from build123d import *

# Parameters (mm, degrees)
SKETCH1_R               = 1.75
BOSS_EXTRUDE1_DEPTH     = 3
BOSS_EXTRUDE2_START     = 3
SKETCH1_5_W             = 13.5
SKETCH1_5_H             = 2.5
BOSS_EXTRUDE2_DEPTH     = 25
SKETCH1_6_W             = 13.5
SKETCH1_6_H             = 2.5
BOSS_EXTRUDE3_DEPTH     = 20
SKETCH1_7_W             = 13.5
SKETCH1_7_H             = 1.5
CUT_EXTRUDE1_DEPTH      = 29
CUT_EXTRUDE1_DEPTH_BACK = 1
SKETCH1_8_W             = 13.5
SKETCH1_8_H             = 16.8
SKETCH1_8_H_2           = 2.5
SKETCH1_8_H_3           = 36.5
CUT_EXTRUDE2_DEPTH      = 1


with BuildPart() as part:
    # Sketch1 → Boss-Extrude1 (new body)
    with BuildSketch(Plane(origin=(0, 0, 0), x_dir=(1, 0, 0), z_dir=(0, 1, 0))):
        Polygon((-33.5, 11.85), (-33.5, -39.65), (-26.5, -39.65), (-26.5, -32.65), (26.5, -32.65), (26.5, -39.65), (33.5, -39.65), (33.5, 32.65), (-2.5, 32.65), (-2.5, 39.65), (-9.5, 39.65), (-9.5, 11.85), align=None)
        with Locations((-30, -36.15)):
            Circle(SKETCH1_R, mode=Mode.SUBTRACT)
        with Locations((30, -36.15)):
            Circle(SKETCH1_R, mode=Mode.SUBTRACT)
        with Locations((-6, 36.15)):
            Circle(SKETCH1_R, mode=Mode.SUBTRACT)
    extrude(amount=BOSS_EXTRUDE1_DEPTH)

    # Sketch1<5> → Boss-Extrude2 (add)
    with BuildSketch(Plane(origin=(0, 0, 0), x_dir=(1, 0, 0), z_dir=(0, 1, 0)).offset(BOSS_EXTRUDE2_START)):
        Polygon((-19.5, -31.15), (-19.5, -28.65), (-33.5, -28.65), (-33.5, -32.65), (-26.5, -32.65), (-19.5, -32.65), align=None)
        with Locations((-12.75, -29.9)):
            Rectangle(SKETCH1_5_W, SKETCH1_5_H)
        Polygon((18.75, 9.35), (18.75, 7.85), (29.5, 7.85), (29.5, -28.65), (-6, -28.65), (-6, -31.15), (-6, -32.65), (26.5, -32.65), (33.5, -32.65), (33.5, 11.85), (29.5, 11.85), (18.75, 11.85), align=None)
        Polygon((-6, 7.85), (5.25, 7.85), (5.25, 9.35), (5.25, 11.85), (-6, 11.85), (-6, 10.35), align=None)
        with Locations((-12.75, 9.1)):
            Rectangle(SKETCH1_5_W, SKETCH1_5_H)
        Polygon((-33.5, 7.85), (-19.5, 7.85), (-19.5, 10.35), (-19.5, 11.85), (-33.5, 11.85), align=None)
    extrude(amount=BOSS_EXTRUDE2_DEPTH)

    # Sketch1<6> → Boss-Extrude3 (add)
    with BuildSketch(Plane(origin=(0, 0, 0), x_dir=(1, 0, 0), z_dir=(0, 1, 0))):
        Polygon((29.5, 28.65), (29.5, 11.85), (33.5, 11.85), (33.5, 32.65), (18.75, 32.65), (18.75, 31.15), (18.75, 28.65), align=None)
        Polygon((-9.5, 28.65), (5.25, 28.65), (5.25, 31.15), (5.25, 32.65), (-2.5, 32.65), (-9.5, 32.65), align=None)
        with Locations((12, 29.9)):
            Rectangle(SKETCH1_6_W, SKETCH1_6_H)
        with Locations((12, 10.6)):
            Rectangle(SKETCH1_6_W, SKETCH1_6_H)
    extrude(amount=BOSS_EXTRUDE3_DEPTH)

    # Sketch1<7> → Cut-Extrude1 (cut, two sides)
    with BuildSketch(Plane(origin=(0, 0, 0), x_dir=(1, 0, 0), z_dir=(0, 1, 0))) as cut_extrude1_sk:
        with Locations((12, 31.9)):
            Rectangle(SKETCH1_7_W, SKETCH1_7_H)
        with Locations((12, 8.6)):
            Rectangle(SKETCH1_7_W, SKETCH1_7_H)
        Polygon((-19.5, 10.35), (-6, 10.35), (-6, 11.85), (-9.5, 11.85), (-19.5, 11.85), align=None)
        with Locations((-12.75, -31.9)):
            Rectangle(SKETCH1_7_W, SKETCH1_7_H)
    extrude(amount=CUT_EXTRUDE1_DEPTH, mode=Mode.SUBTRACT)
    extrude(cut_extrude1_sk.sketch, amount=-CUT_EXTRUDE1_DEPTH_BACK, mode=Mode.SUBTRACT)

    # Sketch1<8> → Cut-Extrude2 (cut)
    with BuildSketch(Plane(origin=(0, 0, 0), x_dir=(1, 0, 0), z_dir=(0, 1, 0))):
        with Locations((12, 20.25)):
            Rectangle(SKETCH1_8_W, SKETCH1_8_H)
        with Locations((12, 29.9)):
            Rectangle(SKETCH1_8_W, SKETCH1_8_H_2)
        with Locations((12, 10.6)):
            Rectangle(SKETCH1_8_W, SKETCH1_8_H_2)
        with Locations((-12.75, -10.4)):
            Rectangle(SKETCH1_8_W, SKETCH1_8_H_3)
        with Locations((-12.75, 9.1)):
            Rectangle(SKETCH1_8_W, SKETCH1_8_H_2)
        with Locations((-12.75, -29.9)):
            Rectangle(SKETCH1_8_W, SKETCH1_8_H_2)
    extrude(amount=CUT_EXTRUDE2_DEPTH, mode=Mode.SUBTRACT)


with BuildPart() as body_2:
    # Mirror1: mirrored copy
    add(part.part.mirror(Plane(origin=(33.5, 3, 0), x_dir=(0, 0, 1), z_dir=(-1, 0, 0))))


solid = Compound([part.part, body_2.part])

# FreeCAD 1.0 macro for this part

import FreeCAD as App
import Part
import Sketcher

V = App.Vector


def add_polygon(sketch, points):
    """Adds a closed chain of lines whose ends are joined by coincident constraints."""
    first, n = sketch.GeometryCount, len(points)
    for a, b in zip(points, points[1:] + points[:1]):
        sketch.addGeometry(Part.LineSegment(App.Vector(*a, 0), App.Vector(*b, 0)), False)
    for i in range(n):
        sketch.addConstraint(Sketcher.Constraint("Coincident", first + i, 2, first + (i + 1) % n, 1))

doc = App.newDocument("Part")
body = doc.addObject("PartDesign::Body", "Body")

sketch1 = body.newObject("Sketcher::SketchObject", "Sketch")
sketch1.AttachmentSupport = (doc.getObject("XZ_Plane"), [""])
sketch1.MapMode = "FlatFace"
add_polygon(sketch1, [(-33.5, -11.8), (-33.5, 39.6), (-26.5, 39.6), (-26.5, 32.6), (26.5, 32.6), (26.5, 39.6), (33.5, 39.6), (33.5, -32.6), (-2.5, -32.6), (-2.5, -39.6), (-9.5, -39.6), (-9.5, -11.8)])
sketch1.addGeometry(Part.Circle(V(-30, 36.1, 0), V(0, 0, 1), 1.8), False)
sketch1.addGeometry(Part.Circle(V(30, 36.1, 0), V(0, 0, 1), 1.8), False)
sketch1.addGeometry(Part.Circle(V(-6, -36.1, 0), V(0, 0, 1), 1.8), False)
sketch1.addConstraint(Sketcher.Constraint("Vertical", 0))
sketch1.addConstraint(Sketcher.Constraint("Horizontal", 1))
sketch1.addConstraint(Sketcher.Constraint("Vertical", 2))
sketch1.addConstraint(Sketcher.Constraint("Horizontal", 3))
sketch1.addConstraint(Sketcher.Constraint("Vertical", 4))
sketch1.addConstraint(Sketcher.Constraint("Horizontal", 5))
sketch1.addConstraint(Sketcher.Constraint("Vertical", 6))
sketch1.addConstraint(Sketcher.Constraint("Horizontal", 7))
sketch1.addConstraint(Sketcher.Constraint("Vertical", 8))
sketch1.addConstraint(Sketcher.Constraint("Horizontal", 9))
sketch1.addConstraint(Sketcher.Constraint("Vertical", 10))
sketch1.addConstraint(Sketcher.Constraint("Horizontal", 11))
sketch1.addConstraint(Sketcher.Constraint("Equal", 12, 13))
sketch1.addConstraint(Sketcher.Constraint("Equal", 13, 14))
sketch1.addConstraint(Sketcher.Constraint("Symmetric", 12, 3, 13, 3, -2))
sketch1.addConstraint(Sketcher.Constraint("Symmetric", 1, 2, 4, 2, -2))
sketch1.addConstraint(Sketcher.Constraint("Equal", 1, 5))
sketch1.addConstraint(Sketcher.Constraint("Equal", 5, 9))
sketch1.addConstraint(Sketcher.Constraint("Equal", 9, 2))
sketch1.addConstraint(Sketcher.Constraint("Equal", 4, 8))
sketch1.addConstraint(Sketcher.Constraint("Diameter", 12, 3.5))
sketch1.addConstraint(Sketcher.Constraint("DistanceX", 1, 1, 1, 2, 7.0))
sketch1.addConstraint(Sketcher.Constraint("DistanceX", 3, 1, 3, 2, 53.0))
sketch1.addConstraint(Sketcher.Constraint("DistanceX", 7, 2, 7, 1, 36.0))
sketch1.addConstraint(Sketcher.Constraint("DistanceY", 0, 1, 0, 2, 51.5))
sketch1.addConstraint(Sketcher.Constraint("DistanceY", 6, 2, 6, 1, 72.3))
sketch1.addConstraint(Sketcher.Constraint("DistanceX", 12, 3, -1, 1, 30.0))
sketch1.addConstraint(Sketcher.Constraint("DistanceX", 14, 3, -1, 1, 6.0))
sketch1.addConstraint(Sketcher.Constraint("DistanceY", 14, 3, 12, 3, 72.3))
sketch1.addConstraint(Sketcher.Constraint("DistanceY", 12, 3, 0, 2, 3.5))
sketch1.addConstraint(Sketcher.Constraint("DistanceY", -1, 1, 12, 3, 36.15))
pad1 = body.newObject("PartDesign::Pad", "Pad")
pad1.Profile = sketch1
pad1.Length = 3
pad1.Reversed = True

sketch2 = body.newObject("Sketcher::SketchObject", "Sketch001")
sketch2.AttachmentSupport = (doc.getObject("XZ_Plane"), [""])
sketch2.MapMode = "FlatFace"
sketch2.AttachmentOffset = App.Placement(V(0, 0, -3), App.Rotation())
add_polygon(sketch2, [(-33.5, 28.6), (-33.5, 32.6), (-19.5, 32.6), (-19.5, 31.1), (-6, 31.1), (-6, 32.6), (33.5, 32.6), (33.5, -11.8), (18.8, -11.8), (18.8, -7.8), (29.5, -7.8), (29.5, 28.6)])
add_polygon(sketch2, [(5.2, -7.8), (5.2, -11.8), (-6, -11.8), (-6, -10.3), (-19.5, -10.3), (-19.5, -11.8), (-33.5, -11.8), (-33.5, -7.8)])
sketch2.addConstraint(Sketcher.Constraint("Vertical", 0))
sketch2.addConstraint(Sketcher.Constraint("Horizontal", 1))
sketch2.addConstraint(Sketcher.Constraint("Vertical", 2))
sketch2.addConstraint(Sketcher.Constraint("Horizontal", 3))
sketch2.addConstraint(Sketcher.Constraint("Vertical", 4))
sketch2.addConstraint(Sketcher.Constraint("Horizontal", 5))
sketch2.addConstraint(Sketcher.Constraint("Vertical", 6))
sketch2.addConstraint(Sketcher.Constraint("Horizontal", 7))
sketch2.addConstraint(Sketcher.Constraint("Vertical", 8))
sketch2.addConstraint(Sketcher.Constraint("Horizontal", 9))
sketch2.addConstraint(Sketcher.Constraint("Vertical", 10))
sketch2.addConstraint(Sketcher.Constraint("Horizontal", 11))
sketch2.addConstraint(Sketcher.Constraint("Vertical", 12))
sketch2.addConstraint(Sketcher.Constraint("Horizontal", 13))
sketch2.addConstraint(Sketcher.Constraint("Vertical", 14))
sketch2.addConstraint(Sketcher.Constraint("Horizontal", 15))
sketch2.addConstraint(Sketcher.Constraint("Vertical", 16))
sketch2.addConstraint(Sketcher.Constraint("Horizontal", 17))
sketch2.addConstraint(Sketcher.Constraint("Vertical", 18))
sketch2.addConstraint(Sketcher.Constraint("Horizontal", 19))
sketch2.addConstraint(Sketcher.Constraint("Symmetric", 0, 2, 5, 2, -2))
sketch2.addConstraint(Sketcher.Constraint("Symmetric", 6, 2, 17, 2, -2))
sketch2.addConstraint(Sketcher.Constraint("Horizontal", 7, 2, 12, 2))
sketch2.addConstraint(Sketcher.Constraint("Horizontal", 9, 2, 18, 2))
sketch2.addConstraint(Sketcher.Constraint("Vertical", 4, 2, 13, 2))
sketch2.addConstraint(Sketcher.Constraint("Vertical", 2, 2, 15, 2))
sketch2.addConstraint(Sketcher.Constraint("Equal", 0, 8))
sketch2.addConstraint(Sketcher.Constraint("Equal", 4, 14))
sketch2.addConstraint(Sketcher.Constraint("DistanceX", 1, 1, 1, 2, 14.0))
sketch2.addConstraint(Sketcher.Constraint("DistanceX", 11, 2, 11, 1, 63.0))
sketch2.addConstraint(Sketcher.Constraint("DistanceY", 0, 1, 0, 2, 4.0))
sketch2.addConstraint(Sketcher.Constraint("DistanceX", 3, 1, 3, 2, 13.5))
sketch2.addConstraint(Sketcher.Constraint("DistanceX", 5, 1, 5, 2, 39.5))
sketch2.addConstraint(Sketcher.Constraint("DistanceY", 2, 2, 2, 1, 1.5))
sketch2.addConstraint(Sketcher.Constraint("DistanceY", 6, 2, 6, 1, 44.5))
sketch2.addConstraint(Sketcher.Constraint("DistanceX", 7, 2, 7, 1, 14.75))
sketch2.addConstraint(Sketcher.Constraint("DistanceX", 13, 2, 13, 1, 11.25))
sketch2.addConstraint(Sketcher.Constraint("DistanceY", -1, 1, 0, 2, 32.65))
pad2 = body.newObject("PartDesign::Pad", "Pad001")
pad2.Profile = sketch2
pad2.Length = 25
pad2.Reversed = True

sketch3 = body.newObject("Sketcher::SketchObject", "Sketch002")
sketch3.AttachmentSupport = (doc.getObject("XZ_Plane"), [""])
sketch3.MapMode = "FlatFace"
add_polygon(sketch3, [(29.5, -28.6), (29.5, -11.8), (33.5, -11.8), (33.5, -32.6), (18.8, -32.6), (18.8, -31.1), (5.2, -31.1), (5.2, -32.6), (-9.5, -32.6), (-9.5, -28.6)])
add_polygon(sketch3, [(5.2, -11.8), (5.2, -9.3), (18.8, -9.3), (18.8, -11.8)])
sketch3.addConstraint(Sketcher.Constraint("Vertical", 0))
sketch3.addConstraint(Sketcher.Constraint("Horizontal", 1))
sketch3.addConstraint(Sketcher.Constraint("Vertical", 2))
sketch3.addConstraint(Sketcher.Constraint("Horizontal", 3))
sketch3.addConstraint(Sketcher.Constraint("Vertical", 4))
sketch3.addConstraint(Sketcher.Constraint("Horizontal", 5))
sketch3.addConstraint(Sketcher.Constraint("Vertical", 6))
sketch3.addConstraint(Sketcher.Constraint("Horizontal", 7))
sketch3.addConstraint(Sketcher.Constraint("Vertical", 8))
sketch3.addConstraint(Sketcher.Constraint("Horizontal", 9))
sketch3.addConstraint(Sketcher.Constraint("Vertical", 10))
sketch3.addConstraint(Sketcher.Constraint("Horizontal", 11))
sketch3.addConstraint(Sketcher.Constraint("Vertical", 12))
sketch3.addConstraint(Sketcher.Constraint("Horizontal", 13))
sketch3.addConstraint(Sketcher.Constraint("Horizontal", 3, 2, 6, 2))
sketch3.addConstraint(Sketcher.Constraint("Horizontal", 1, 2, 12, 2))
sketch3.addConstraint(Sketcher.Constraint("Vertical", 6, 2, 10, 2))
sketch3.addConstraint(Sketcher.Constraint("Vertical", 4, 2, 11, 2))
sketch3.addConstraint(Sketcher.Constraint("Equal", 3, 7))
sketch3.addConstraint(Sketcher.Constraint("Equal", 1, 8))
sketch3.addConstraint(Sketcher.Constraint("DistanceX", 1, 1, 1, 2, 4.0))
sketch3.addConstraint(Sketcher.Constraint("DistanceX", 9, 1, 9, 2, 39.0))
sketch3.addConstraint(Sketcher.Constraint("DistanceX", 5, 2, 5, 1, 13.5))
sketch3.addConstraint(Sketcher.Constraint("DistanceY", 0, 1, 0, 2, 16.8))
sketch3.addConstraint(Sketcher.Constraint("DistanceY", 4, 1, 4, 2, 1.5))
sketch3.addConstraint(Sketcher.Constraint("DistanceY", 10, 1, 10, 2, 2.5))
sketch3.addConstraint(Sketcher.Constraint("DistanceX", -1, 1, 0, 2, 29.5))
sketch3.addConstraint(Sketcher.Constraint("DistanceY", 0, 2, -1, 1, 11.85))
pad3 = body.newObject("PartDesign::Pad", "Pad002")
pad3.Profile = sketch3
pad3.Length = 20
pad3.Reversed = True

sketch4 = body.newObject("Sketcher::SketchObject", "Sketch003")
sketch4.AttachmentSupport = (doc.getObject("XZ_Plane"), [""])
sketch4.MapMode = "FlatFace"
add_polygon(sketch4, [(5.2, -32.6), (5.2, -31.1), (18.8, -31.1), (18.8, -32.6)])
add_polygon(sketch4, [(5.2, -9.3), (5.2, -7.8), (18.8, -7.8), (18.8, -9.3)])
add_polygon(sketch4, [(-19.5, -10.3), (-6, -10.3), (-6, -11.8), (-19.5, -11.8)])
add_polygon(sketch4, [(-19.5, 31.1), (-19.5, 32.6), (-6, 32.6), (-6, 31.1)])
sketch4.addConstraint(Sketcher.Constraint("Vertical", 0))
sketch4.addConstraint(Sketcher.Constraint("Horizontal", 1))
sketch4.addConstraint(Sketcher.Constraint("Vertical", 2))
sketch4.addConstraint(Sketcher.Constraint("Horizontal", 3))
sketch4.addConstraint(Sketcher.Constraint("Vertical", 4))
sketch4.addConstraint(Sketcher.Constraint("Horizontal", 5))
sketch4.addConstraint(Sketcher.Constraint("Vertical", 6))
sketch4.addConstraint(Sketcher.Constraint("Horizontal", 7))
sketch4.addConstraint(Sketcher.Constraint("Horizontal", 8))
sketch4.addConstraint(Sketcher.Constraint("Vertical", 9))
sketch4.addConstraint(Sketcher.Constraint("Horizontal", 10))
sketch4.addConstraint(Sketcher.Constraint("Vertical", 11))
sketch4.addConstraint(Sketcher.Constraint("Vertical", 12))
sketch4.addConstraint(Sketcher.Constraint("Horizontal", 13))
sketch4.addConstraint(Sketcher.Constraint("Vertical", 14))
sketch4.addConstraint(Sketcher.Constraint("Horizontal", 15))
sketch4.addConstraint(Sketcher.Constraint("Vertical", 3, 2, 4, 2))
sketch4.addConstraint(Sketcher.Constraint("Vertical", 2, 2, 5, 2))
sketch4.addConstraint(Sketcher.Constraint("Vertical", 11, 2, 12, 2))
sketch4.addConstraint(Sketcher.Constraint("Vertical", 9, 2, 13, 2))
sketch4.addConstraint(Sketcher.Constraint("Equal", 7, 8))
sketch4.addConstraint(Sketcher.Constraint("Equal", 2, 4))
sketch4.addConstraint(Sketcher.Constraint("Equal", 6, 9))
sketch4.addConstraint(Sketcher.Constraint("Equal", 11, 12))
sketch4.addConstraint(Sketcher.Constraint("DistanceX", 1, 1, 1, 2, 13.5))
sketch4.addConstraint(Sketcher.Constraint("DistanceY", 0, 1, 0, 2, 1.5))
sketch4.addConstraint(Sketcher.Constraint("DistanceX", 8, 2, -1, 1, 6.0))
sketch4.addConstraint(Sketcher.Constraint("DistanceY", 8, 2, 7, 2, 1.0))
sketch4.addConstraint(Sketcher.Constraint("DistanceY", 11, 2, 12, 2, 43.0))
sketch4.addConstraint(Sketcher.Constraint("DistanceY", 0, 2, 4, 2, 23.3))
sketch4.addConstraint(Sketcher.Constraint("DistanceX", -1, 1, 0, 2, 5.25))
sketch4.addConstraint(Sketcher.Constraint("DistanceY", 0, 2, -1, 1, 31.15))
pocket1 = body.newObject("PartDesign::Pocket", "Pocket")
pocket1.Profile = sketch4
pocket1.Type = "ThroughAll"
pocket1.Midplane = True

sketch5 = body.newObject("Sketcher::SketchObject", "Sketch004")
sketch5.AttachmentSupport = (doc.getObject("XZ_Plane"), [""])
sketch5.MapMode = "FlatFace"
add_polygon(sketch5, [(19, -31), (5, -31), (5, -9), (19, -9)])
add_polygon(sketch5, [(-6, -10), (-20, -10), (-20, 31), (-6, 31)])
sketch5.addConstraint(Sketcher.Constraint("Horizontal", 0))
sketch5.addConstraint(Sketcher.Constraint("Vertical", 1))
sketch5.addConstraint(Sketcher.Constraint("Horizontal", 2))
sketch5.addConstraint(Sketcher.Constraint("Vertical", 3))
sketch5.addConstraint(Sketcher.Constraint("Horizontal", 4))
sketch5.addConstraint(Sketcher.Constraint("Vertical", 5))
sketch5.addConstraint(Sketcher.Constraint("Horizontal", 6))
sketch5.addConstraint(Sketcher.Constraint("Vertical", 7))
sketch5.addConstraint(Sketcher.Constraint("Equal", 2, 4))
sketch5.addConstraint(Sketcher.Constraint("DistanceX", 0, 2, 0, 1, 13.5))
sketch5.addConstraint(Sketcher.Constraint("DistanceY", 1, 1, 1, 2, 21.8))
sketch5.addConstraint(Sketcher.Constraint("DistanceY", 5, 1, 5, 2, 41.5))
sketch5.addConstraint(Sketcher.Constraint("DistanceX", 6, 2, -1, 1, 6.0))
sketch5.addConstraint(Sketcher.Constraint("DistanceY", 4, 2, 1, 2, 1.0))
sketch5.addConstraint(Sketcher.Constraint("DistanceX", -1, 1, 0, 2, 5.25))
sketch5.addConstraint(Sketcher.Constraint("DistanceY", 0, 2, -1, 1, 31.15))
pocket2 = body.newObject("PartDesign::Pocket", "Pocket001")
pocket2.Profile = sketch5
pocket2.Length = 1
body2 = doc.addObject("PartDesign::Body", "Body001")
doc.recompute()

mirroring = doc.addObject("Part::Mirroring", "Mirroring")
mirroring.Source = body
mirroring.Base = V(33.5, 3, 0)
mirroring.Normal = V(-1, 0, 0)
body2.BaseFeature = mirroring
doc.recompute()
mirroring.Visibility = False

doc.recompute()
